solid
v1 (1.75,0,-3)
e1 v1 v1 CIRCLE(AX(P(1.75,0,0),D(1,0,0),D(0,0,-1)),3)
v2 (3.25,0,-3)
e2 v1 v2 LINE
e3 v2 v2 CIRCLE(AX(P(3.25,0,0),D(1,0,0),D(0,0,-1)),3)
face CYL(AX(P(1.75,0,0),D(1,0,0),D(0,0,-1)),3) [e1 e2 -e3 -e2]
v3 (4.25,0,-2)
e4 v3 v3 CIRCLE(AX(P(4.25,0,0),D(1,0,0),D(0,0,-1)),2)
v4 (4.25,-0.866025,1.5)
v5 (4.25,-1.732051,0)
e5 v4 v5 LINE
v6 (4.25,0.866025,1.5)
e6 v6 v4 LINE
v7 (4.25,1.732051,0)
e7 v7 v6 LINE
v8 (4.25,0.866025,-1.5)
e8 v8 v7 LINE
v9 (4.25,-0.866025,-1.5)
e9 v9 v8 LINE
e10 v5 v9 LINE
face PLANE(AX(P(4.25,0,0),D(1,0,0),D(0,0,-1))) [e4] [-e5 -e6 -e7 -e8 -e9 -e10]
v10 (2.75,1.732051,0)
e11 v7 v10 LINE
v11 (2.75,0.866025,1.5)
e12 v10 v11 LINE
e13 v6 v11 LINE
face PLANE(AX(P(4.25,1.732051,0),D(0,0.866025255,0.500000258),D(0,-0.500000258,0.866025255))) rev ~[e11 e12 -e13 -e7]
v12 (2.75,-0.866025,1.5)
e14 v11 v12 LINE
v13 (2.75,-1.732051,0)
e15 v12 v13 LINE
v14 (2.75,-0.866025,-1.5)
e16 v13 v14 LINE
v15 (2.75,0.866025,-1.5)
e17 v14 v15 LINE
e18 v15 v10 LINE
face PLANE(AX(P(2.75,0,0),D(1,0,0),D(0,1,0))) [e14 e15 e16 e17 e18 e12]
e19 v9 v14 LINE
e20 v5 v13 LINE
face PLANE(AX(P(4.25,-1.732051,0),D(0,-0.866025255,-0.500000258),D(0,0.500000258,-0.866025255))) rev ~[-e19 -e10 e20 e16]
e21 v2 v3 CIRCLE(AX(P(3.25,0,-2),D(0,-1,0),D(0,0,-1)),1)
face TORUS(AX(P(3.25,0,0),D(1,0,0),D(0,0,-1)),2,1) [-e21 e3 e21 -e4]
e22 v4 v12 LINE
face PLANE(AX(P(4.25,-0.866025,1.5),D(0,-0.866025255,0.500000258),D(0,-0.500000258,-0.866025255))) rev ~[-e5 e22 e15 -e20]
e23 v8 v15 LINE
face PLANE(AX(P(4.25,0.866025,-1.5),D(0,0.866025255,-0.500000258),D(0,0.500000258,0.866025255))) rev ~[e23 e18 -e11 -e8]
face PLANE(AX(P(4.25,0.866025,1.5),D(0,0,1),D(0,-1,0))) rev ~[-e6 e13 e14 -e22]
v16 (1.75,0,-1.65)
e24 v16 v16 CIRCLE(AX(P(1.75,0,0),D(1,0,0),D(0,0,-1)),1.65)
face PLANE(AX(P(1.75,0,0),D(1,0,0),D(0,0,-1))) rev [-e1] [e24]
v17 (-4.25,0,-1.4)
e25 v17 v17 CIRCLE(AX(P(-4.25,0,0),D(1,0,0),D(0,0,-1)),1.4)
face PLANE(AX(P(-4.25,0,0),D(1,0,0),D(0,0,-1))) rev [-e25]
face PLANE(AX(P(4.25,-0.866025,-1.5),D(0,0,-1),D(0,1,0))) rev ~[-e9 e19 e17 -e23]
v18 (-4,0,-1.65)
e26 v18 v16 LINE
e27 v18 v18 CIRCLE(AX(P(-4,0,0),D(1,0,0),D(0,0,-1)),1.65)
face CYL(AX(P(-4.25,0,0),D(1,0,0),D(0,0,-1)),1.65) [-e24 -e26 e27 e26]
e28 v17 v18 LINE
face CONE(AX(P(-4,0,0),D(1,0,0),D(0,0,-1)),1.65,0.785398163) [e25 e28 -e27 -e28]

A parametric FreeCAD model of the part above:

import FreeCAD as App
import Part
import Sketcher
from FreeCAD import Vector
Q = App.Units.Quantity


def edges_at(feature, points):
    """Names of the edges that pass closest to the given points."""
    edges = feature.Shape.Edges
    near = lambda p: min(range(len(edges)), key=lambda i: edges[i].distToShape(Part.Vertex(*p))[0])
    return sorted({f"Edge{near(p) + 1}" for p in points})


def add_polygon(sketch, points):
    """Adds a closed chain of lines whose ends are joined by coincident constraints."""
    first, n = sketch.GeometryCount, len(points)
    for a, b in zip(points, points[1:] + points[:1]):
        sketch.addGeometry(Part.LineSegment(App.Vector(*a, 0), App.Vector(*b, 0)), False)
    for i in range(n):
        sketch.addConstraint(Sketcher.Constraint("Coincident", first + i, 2, first + (i + 1) % n, 1))

doc = App.newDocument("Part")
body = doc.addObject("PartDesign::Body", "Body")

sketch1 = doc.addObject("Sketcher::SketchObject", "Sketch")
body.addObject(sketch1)
sketch1.AttachmentSupport = (doc.XZ_Plane, [""])
sketch1.MapMode = "FlatFace"
add_polygon(sketch1, [(4.25, 0), (-4.25, 0), (-4.25, -1.65), (1.75, -1.65), (1.75, -3), (4.25, -3)])
sketch1.addConstraint(Sketcher.Constraint("Horizontal", 0))
sketch1.addConstraint(Sketcher.Constraint("Vertical", 1))
sketch1.addConstraint(Sketcher.Constraint("Horizontal", 2))
sketch1.addConstraint(Sketcher.Constraint("Vertical", 3))
sketch1.addConstraint(Sketcher.Constraint("Horizontal", 4))
sketch1.addConstraint(Sketcher.Constraint("Vertical", 5))
sketch1.addConstraint(Sketcher.Constraint("Symmetric", 0, 2, 5, 2, -1, 1))
sketch1.addConstraint(Sketcher.Constraint("DistanceX", 2, 1, 2, 2, 6.0))
sketch1.addConstraint(Sketcher.Constraint("DistanceY", 5, 1, 5, 2, 3.0))
sketch1.addConstraint(Sketcher.Constraint("DistanceX", 0, 2, 0, 1, 8.5))
sketch1.addConstraint(Sketcher.Constraint("DistanceY", 1, 2, 1, 1, 1.65))
revolution = doc.addObject("PartDesign::Revolution", "Revolution")
body.addObject(revolution)
revolution.Profile = sketch1
revolution.ReferenceAxis = (sketch1, ["H_Axis"])
revolution.Angle = 360
doc.recompute()

chamfer = doc.addObject("PartDesign::Chamfer", "Chamfer")
body.addObject(chamfer)
chamfer.Base = (revolution, edges_at(revolution, [(-4.25, 0, 1.65)]))
chamfer.ChamferType = "Two distances"
chamfer.Size = 0.25
chamfer.Size2 = 0.25
doc.recompute()

fillet = doc.addObject("PartDesign::Fillet", "Fillet")
body.addObject(fillet)
fillet.Base = (chamfer, edges_at(chamfer, [(4.25, 0, 3)]))
fillet.Radius = 1

sketch2 = doc.addObject("Sketcher::SketchObject", "Sketch001")
body.addObject(sketch2)
sketch2.AttachmentSupport = (doc.YZ_Plane, [""])
sketch2.MapMode = "FlatFace"
sketch2.AttachmentOffset = App.Placement(Vector(0, 0, 4.25), App.Rotation())
add_polygon(sketch2, [(0.866025, 1.5), (-0.866025, 1.5), (-1.732051, 0), (-0.866025, -1.5), (0.866025, -1.5), (1.732051, 0)])
sketch2.addConstraint(Sketcher.Constraint("Horizontal", 0))
sketch2.addConstraint(Sketcher.Constraint("Horizontal", 3))
sketch2.addConstraint(Sketcher.Constraint("Symmetric", 0, 2, 3, 2, -1, 1))
sketch2.addConstraint(Sketcher.Constraint("Symmetric", 1, 2, 4, 2, -1, 1))
sketch2.addConstraint(Sketcher.Constraint("PointOnObject", 1, 2, -1))
sketch2.addConstraint(Sketcher.Constraint("Parallel", 2, 5))
sketch2.addConstraint(Sketcher.Constraint("Vertical", 0, 2, 2, 2))
sketch2.addConstraint(Sketcher.Constraint("Angle", 1, Q("-120.000017 deg")))
sketch2.addConstraint(Sketcher.Constraint("DistanceY", 2, 2, 0, 2, 3.0))
sketch2.addConstraint(Sketcher.Constraint("DistanceX", 0, 2, 0, 1, 1.73205))
pocket1 = doc.addObject("PartDesign::Pocket", "Pocket")
body.addObject(pocket1)
pocket1.Profile = sketch2
pocket1.Length = 1.5

doc.recompute()
